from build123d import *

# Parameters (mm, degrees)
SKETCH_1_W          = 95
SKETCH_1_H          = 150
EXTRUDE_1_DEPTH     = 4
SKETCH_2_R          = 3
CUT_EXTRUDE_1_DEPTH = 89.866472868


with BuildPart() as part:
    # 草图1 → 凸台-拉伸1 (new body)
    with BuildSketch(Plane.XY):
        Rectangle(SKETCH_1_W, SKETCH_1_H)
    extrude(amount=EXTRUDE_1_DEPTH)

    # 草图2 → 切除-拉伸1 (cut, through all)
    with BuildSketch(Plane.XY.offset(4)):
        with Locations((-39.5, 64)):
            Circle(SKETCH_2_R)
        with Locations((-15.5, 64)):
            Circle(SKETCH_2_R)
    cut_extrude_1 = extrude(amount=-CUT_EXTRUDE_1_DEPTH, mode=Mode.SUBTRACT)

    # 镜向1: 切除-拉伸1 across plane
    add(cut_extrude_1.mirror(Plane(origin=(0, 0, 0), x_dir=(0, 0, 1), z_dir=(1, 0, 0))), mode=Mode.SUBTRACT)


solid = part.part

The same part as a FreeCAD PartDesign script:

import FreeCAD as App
import Part
import Sketcher
from FreeCAD import Vector

doc = App.newDocument("Part")
params = doc.addObject("Spreadsheet::Sheet", "Params")
for row, (alias, value) in enumerate([
    ("sketch1_width", "95 mm"),
    ("sketch1_height", "150 mm"),
    ("pad1_length", "4 mm"),
    ("sketch2_diameter", "6 mm"),
], start=1):
    params.set(f"A{row}", alias)
    params.set(f"B{row}", "=" + value)
    params.setAlias(f"B{row}", alias)

body = doc.addObject("PartDesign::Body", "Body")

sketch1 = doc.addObject("Sketcher::SketchObject", "Sketch")
body.addObject(sketch1)
sketch1.AttachmentSupport = (doc.XY_Plane, [""])
sketch1.MapMode = "FlatFace"
sketch1.addGeometry(Part.LineSegment(Vector(-48, 75, 0), Vector(-48, -75, 0)), False)
sketch1.addGeometry(Part.LineSegment(Vector(-48, -75, 0), Vector(48, -75, 0)), False)
sketch1.addGeometry(Part.LineSegment(Vector(48, -75, 0), Vector(48, 75, 0)), False)
sketch1.addGeometry(Part.LineSegment(Vector(48, 75, 0), Vector(-48, 75, 0)), False)
sketch1.addConstraint(Sketcher.Constraint("Coincident", 0, 2, 1, 1))
sketch1.addConstraint(Sketcher.Constraint("Coincident", 1, 2, 2, 1))
sketch1.addConstraint(Sketcher.Constraint("Coincident", 2, 2, 3, 1))
sketch1.addConstraint(Sketcher.Constraint("Coincident", 3, 2, 0, 1))
sketch1.addConstraint(Sketcher.Constraint("Vertical", 0))
sketch1.addConstraint(Sketcher.Constraint("Horizontal", 1))
sketch1.addConstraint(Sketcher.Constraint("Vertical", 2))
sketch1.addConstraint(Sketcher.Constraint("Horizontal", 3))
sketch1.addConstraint(Sketcher.Constraint("Symmetric", 0, 2, 2, 2, -1, 1))
sketch1.addConstraint(Sketcher.Constraint("DistanceX", 1, 1, 1, 2, 95.0))
sketch1.addConstraint(Sketcher.Constraint("DistanceY", 0, 2, 0, 1, 150.0))
sketch1.setExpression("Constraints[9]", "Params.sketch1_width")
sketch1.setExpression("Constraints[10]", "Params.sketch1_height")
pad1 = doc.addObject("PartDesign::Pad", "Pad")
body.addObject(pad1)
pad1.Profile = sketch1
pad1.setExpression("Length", "Params.pad1_length")

sketch2 = doc.addObject("Sketcher::SketchObject", "Sketch001")
body.addObject(sketch2)
sketch2.AttachmentSupport = (doc.XY_Plane, [""])
sketch2.MapMode = "FlatFace"
sketch2.AttachmentOffset = App.Placement(Vector(0, 0, 4), App.Rotation())
sketch2.addGeometry(Part.Circle(Vector(-39.5, 64, 0), Vector(0, 0, 1), 3), False)
sketch2.addGeometry(Part.Circle(Vector(-15.5, 64, 0), Vector(0, 0, 1), 3), False)
sketch2.addConstraint(Sketcher.Constraint("Equal", 0, 1))
sketch2.addConstraint(Sketcher.Constraint("Horizontal", 0, 3, 1, 3))
sketch2.addConstraint(Sketcher.Constraint("Diameter", 0, 6.0))
sketch2.addConstraint(Sketcher.Constraint("DistanceY", -1, 1, 0, 3, 64.0))
sketch2.addConstraint(Sketcher.Constraint("DistanceX", 0, 3, 1, 3, 24.0))
sketch2.addConstraint(Sketcher.Constraint("DistanceX", 0, 3, -1, 1, 39.5))
sketch2.setExpression("Constraints[2]", "Params.sketch2_diameter")
pocket1 = doc.addObject("PartDesign::Pocket", "Pocket")
body.addObject(pocket1)
pocket1.Profile = sketch2
pocket1.Type = "ThroughAll"
doc.recompute()

mirrored = doc.addObject("PartDesign::Mirrored", "Mirrored")
body.addObject(mirrored)
mirrored.Originals = [pocket1]
mirrored.MirrorPlane = (doc.YZ_Plane, [""])
body.Tip = mirrored

doc.recompute()
